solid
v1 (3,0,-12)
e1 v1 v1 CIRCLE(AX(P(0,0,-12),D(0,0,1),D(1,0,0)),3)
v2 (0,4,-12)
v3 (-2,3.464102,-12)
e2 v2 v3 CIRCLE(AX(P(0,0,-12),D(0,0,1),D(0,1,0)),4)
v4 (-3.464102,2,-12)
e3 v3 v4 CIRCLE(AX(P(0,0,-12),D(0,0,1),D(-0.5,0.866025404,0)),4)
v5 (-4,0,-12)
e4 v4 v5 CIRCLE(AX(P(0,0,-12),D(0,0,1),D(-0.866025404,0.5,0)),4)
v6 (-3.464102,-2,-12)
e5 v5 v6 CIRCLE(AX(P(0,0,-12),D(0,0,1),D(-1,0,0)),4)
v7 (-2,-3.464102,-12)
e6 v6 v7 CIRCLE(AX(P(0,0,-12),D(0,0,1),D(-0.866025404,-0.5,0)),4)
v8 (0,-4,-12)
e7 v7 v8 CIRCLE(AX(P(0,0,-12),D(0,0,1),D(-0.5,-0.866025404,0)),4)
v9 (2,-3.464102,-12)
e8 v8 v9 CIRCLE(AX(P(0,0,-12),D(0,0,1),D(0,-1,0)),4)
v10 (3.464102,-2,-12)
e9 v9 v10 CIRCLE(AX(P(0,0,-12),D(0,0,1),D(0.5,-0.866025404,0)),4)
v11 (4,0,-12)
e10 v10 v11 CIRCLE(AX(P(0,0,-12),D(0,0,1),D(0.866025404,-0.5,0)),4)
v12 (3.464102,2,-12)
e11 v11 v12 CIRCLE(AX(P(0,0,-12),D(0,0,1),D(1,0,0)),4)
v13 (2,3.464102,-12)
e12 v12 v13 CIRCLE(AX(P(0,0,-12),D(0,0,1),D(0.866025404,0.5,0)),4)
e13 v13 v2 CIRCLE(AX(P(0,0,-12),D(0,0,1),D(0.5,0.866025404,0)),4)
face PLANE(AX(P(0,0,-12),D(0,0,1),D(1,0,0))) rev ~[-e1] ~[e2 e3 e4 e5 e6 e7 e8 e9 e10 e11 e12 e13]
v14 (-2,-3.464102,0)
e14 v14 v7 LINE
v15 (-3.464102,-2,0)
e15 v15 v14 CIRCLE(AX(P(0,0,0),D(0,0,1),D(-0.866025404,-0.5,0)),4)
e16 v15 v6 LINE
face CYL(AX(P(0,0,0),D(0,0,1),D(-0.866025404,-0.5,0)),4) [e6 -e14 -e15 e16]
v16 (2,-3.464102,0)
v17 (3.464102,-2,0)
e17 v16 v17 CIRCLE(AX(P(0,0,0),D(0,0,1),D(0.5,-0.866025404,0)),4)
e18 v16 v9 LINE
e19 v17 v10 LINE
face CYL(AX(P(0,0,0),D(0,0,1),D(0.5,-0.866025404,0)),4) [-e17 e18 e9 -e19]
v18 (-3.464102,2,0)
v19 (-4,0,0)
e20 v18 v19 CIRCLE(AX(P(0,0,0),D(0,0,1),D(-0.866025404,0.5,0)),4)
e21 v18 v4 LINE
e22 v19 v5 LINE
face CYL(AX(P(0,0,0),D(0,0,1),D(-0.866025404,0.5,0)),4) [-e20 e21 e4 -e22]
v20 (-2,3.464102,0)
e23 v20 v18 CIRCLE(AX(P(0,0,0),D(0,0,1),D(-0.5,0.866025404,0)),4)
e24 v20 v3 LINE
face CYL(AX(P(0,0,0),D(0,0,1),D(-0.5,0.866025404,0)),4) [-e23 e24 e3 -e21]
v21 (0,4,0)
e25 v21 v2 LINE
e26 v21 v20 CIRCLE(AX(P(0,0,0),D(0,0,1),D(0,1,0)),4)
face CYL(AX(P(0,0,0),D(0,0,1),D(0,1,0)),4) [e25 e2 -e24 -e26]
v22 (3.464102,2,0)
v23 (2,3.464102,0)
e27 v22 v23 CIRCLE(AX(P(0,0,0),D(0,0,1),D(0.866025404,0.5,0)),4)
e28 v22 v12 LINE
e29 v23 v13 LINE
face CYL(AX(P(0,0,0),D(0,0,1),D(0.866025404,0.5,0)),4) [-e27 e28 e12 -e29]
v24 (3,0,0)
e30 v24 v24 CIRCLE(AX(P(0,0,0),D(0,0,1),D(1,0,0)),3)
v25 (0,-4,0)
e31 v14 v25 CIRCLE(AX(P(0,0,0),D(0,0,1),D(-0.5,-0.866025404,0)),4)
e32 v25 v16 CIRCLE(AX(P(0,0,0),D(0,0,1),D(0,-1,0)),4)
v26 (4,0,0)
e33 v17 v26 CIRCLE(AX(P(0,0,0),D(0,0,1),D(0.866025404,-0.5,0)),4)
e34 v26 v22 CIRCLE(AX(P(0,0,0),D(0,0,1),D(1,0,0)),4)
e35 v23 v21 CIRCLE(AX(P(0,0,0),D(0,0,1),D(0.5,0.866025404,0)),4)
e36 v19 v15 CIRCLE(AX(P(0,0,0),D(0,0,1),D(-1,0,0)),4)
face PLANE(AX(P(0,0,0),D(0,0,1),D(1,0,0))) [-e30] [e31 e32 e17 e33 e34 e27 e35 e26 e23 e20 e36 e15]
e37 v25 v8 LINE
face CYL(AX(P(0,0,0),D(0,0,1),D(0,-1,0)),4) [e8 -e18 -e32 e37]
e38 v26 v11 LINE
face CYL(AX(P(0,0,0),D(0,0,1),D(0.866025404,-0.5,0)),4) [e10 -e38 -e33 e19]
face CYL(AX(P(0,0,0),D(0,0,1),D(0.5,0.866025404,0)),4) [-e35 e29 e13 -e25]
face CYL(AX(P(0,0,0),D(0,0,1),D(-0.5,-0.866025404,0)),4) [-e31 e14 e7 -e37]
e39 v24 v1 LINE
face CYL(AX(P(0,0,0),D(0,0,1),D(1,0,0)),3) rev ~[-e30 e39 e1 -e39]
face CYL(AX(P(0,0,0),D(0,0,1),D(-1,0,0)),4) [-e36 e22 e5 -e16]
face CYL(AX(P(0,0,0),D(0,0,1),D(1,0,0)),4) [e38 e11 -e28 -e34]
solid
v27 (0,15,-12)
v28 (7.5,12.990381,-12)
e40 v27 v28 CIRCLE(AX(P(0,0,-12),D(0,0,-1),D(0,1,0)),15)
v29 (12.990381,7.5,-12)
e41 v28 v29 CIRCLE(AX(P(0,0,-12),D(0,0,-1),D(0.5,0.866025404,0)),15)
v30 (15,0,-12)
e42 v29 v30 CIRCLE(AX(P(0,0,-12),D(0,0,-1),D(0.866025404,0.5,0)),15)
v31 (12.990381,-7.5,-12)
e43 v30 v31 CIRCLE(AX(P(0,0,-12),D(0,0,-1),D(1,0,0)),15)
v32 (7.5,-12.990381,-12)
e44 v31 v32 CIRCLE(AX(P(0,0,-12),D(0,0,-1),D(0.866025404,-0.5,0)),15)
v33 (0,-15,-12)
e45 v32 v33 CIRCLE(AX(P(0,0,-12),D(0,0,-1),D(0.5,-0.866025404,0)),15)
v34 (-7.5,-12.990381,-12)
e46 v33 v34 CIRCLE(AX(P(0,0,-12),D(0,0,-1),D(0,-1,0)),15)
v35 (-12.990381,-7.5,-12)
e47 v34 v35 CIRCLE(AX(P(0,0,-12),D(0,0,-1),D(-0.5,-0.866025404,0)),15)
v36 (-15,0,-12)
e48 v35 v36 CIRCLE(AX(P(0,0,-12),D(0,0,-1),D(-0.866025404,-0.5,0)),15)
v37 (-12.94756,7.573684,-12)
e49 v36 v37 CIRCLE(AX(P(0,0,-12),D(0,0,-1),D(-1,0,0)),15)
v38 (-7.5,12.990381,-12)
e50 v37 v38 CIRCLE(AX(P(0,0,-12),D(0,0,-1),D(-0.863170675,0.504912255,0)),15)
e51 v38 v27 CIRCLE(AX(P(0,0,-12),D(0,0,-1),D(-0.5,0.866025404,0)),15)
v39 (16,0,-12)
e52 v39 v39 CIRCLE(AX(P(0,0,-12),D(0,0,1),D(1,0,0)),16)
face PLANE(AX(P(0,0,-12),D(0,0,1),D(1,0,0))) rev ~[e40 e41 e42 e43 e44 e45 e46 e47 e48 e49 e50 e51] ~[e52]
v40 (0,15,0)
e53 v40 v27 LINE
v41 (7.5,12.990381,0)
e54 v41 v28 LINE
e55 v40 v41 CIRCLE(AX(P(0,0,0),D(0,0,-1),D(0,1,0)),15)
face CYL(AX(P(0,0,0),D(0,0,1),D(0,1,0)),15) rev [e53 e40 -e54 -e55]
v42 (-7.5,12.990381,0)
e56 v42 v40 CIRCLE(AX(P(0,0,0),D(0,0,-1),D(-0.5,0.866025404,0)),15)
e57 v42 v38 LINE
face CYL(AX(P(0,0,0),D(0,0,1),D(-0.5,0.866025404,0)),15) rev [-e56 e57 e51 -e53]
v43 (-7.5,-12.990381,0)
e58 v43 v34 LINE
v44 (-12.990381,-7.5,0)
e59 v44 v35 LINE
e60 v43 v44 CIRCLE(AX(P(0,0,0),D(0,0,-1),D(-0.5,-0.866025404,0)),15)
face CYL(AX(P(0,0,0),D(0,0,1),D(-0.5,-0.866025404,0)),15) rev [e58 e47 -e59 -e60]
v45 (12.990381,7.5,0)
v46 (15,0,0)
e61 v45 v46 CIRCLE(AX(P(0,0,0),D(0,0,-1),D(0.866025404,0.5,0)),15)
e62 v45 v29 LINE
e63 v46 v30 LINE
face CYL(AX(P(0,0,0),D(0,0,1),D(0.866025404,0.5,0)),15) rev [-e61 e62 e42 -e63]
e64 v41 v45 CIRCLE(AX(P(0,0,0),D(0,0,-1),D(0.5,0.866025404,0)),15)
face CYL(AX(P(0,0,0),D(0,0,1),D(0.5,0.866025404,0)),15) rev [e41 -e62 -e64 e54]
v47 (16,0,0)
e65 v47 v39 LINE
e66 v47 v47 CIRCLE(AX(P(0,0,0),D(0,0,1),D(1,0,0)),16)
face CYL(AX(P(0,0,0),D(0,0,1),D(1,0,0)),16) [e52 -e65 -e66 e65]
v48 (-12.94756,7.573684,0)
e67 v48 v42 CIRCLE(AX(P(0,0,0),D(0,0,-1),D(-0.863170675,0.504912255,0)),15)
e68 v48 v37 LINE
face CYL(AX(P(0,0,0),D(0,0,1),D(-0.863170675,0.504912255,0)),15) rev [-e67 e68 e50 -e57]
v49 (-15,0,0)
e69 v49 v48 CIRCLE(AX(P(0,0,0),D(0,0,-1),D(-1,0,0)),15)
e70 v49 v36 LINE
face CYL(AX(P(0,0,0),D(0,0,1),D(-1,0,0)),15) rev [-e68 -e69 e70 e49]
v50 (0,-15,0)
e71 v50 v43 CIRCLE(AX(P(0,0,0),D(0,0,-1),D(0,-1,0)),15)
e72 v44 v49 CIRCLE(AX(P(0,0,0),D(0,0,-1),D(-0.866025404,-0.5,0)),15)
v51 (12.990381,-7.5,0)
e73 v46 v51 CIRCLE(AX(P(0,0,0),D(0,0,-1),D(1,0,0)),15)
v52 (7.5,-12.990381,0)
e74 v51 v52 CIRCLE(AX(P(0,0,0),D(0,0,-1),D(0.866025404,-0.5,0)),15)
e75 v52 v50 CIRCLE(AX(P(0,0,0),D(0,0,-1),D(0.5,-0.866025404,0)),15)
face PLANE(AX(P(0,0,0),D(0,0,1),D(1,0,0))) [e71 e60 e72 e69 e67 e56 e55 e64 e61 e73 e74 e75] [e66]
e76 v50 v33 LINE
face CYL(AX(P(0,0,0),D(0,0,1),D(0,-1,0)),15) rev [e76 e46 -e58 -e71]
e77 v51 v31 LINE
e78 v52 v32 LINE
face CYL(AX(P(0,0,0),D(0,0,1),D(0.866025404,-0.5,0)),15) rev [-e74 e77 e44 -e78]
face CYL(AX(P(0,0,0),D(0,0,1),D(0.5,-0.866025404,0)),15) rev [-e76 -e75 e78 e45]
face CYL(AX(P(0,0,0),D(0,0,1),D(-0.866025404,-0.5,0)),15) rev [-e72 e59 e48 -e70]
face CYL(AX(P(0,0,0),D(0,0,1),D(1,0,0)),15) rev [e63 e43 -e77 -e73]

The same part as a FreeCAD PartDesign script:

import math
import FreeCAD as App
import Part
import Sketcher

V = App.Vector

doc = App.newDocument("Part")
params = doc.addObject("Spreadsheet::Sheet", "Params")
for row, (alias, value) in enumerate([
    ("sketch1_diameter", "6 mm"),
    ("sketch1_radius", "4 mm"),
    ("pad1_length", "12 mm"),
    ("sketch2_diameter", "32 mm"),
    ("sketch2_radius", "15 mm"),
    ("pad2_length", "12 mm"),
], start=1):
    params.set(f"A{row}", alias)
    params.set(f"B{row}", "=" + value)
    params.setAlias(f"B{row}", alias)

body = doc.addObject("PartDesign::Body", "Body")

# Sketch on XY plane
sketch1 = doc.addObject("Sketcher::SketchObject", "Sketch")
body.addObject(sketch1)
sketch1.AttachmentSupport = (doc.XY_Plane, [""])
sketch1.MapMode = "FlatFace"
sketch1.addGeometry(Part.ArcOfCircle(Part.Circle(V(0, 0, 0), V(0, 0, 1), 4), math.radians(-120), math.radians(-90)), False)
sketch1.addGeometry(Part.ArcOfCircle(Part.Circle(V(0, 0, 0), V(0, 0, 1), 4), math.radians(-90), math.radians(-60)), False)
sketch1.addGeometry(Part.ArcOfCircle(Part.Circle(V(0, 0, 0), V(0, 0, 1), 4), math.radians(-60), math.radians(-30)), False)
sketch1.addGeometry(Part.ArcOfCircle(Part.Circle(V(0, 0, 0), V(0, 0, 1), 4), math.radians(-30), math.radians(0)), False)
sketch1.addGeometry(Part.ArcOfCircle(Part.Circle(V(0, 0, 0), V(0, 0, 1), 4), math.radians(0), math.radians(30)), False)
sketch1.addGeometry(Part.ArcOfCircle(Part.Circle(V(0, 0, 0), V(0, 0, 1), 4), math.radians(30), math.radians(60)), False)
sketch1.addGeometry(Part.ArcOfCircle(Part.Circle(V(0, 0, 0), V(0, 0, 1), 4), math.radians(60), math.radians(90)), False)
sketch1.addGeometry(Part.ArcOfCircle(Part.Circle(V(0, 0, 0), V(0, 0, 1), 4), math.radians(90), math.radians(120)), False)
sketch1.addGeometry(Part.ArcOfCircle(Part.Circle(V(0, 0, 0), V(0, 0, 1), 4), math.radians(120), math.radians(150)), False)
sketch1.addGeometry(Part.ArcOfCircle(Part.Circle(V(0, 0, 0), V(0, 0, 1), 4), math.radians(150), math.radians(180)), False)
sketch1.addGeometry(Part.ArcOfCircle(Part.Circle(V(0, 0, 0), V(0, 0, 1), 4), math.radians(180), math.radians(210)), False)
sketch1.addGeometry(Part.ArcOfCircle(Part.Circle(V(0, 0, 0), V(0, 0, 1), 4), math.radians(-150), math.radians(-120)), False)
sketch1.addGeometry(Part.Circle(V(0, 0, 0), V(0, 0, 1), 3), False)
sketch1.addConstraint(Sketcher.Constraint("Tangent", 0, 2, 1, 1))
sketch1.addConstraint(Sketcher.Constraint("Tangent", 1, 2, 2, 1))
sketch1.addConstraint(Sketcher.Constraint("Tangent", 2, 2, 3, 1))
sketch1.addConstraint(Sketcher.Constraint("Tangent", 3, 2, 4, 1))
sketch1.addConstraint(Sketcher.Constraint("Tangent", 4, 2, 5, 1))
sketch1.addConstraint(Sketcher.Constraint("Tangent", 5, 2, 6, 1))
sketch1.addConstraint(Sketcher.Constraint("Tangent", 6, 2, 7, 1))
sketch1.addConstraint(Sketcher.Constraint("Tangent", 7, 2, 8, 1))
sketch1.addConstraint(Sketcher.Constraint("Tangent", 8, 2, 9, 1))
sketch1.addConstraint(Sketcher.Constraint("Tangent", 9, 2, 10, 1))
sketch1.addConstraint(Sketcher.Constraint("Tangent", 10, 2, 11, 1))
sketch1.addConstraint(Sketcher.Constraint("Tangent", 11, 2, 0, 1))
sketch1.addConstraint(Sketcher.Constraint("Coincident", 0, 3, -1, 1))
sketch1.addConstraint(Sketcher.Constraint("Coincident", 2, 3, -1, 1))
sketch1.addConstraint(Sketcher.Constraint("Coincident", 4, 3, -1, 1))
sketch1.addConstraint(Sketcher.Constraint("Coincident", 6, 3, -1, 1))
sketch1.addConstraint(Sketcher.Constraint("Coincident", 8, 3, -1, 1))
sketch1.addConstraint(Sketcher.Constraint("Coincident", 12, 3, -1, 1))
sketch1.addConstraint(Sketcher.Constraint("Equal", 8, 9))
sketch1.addConstraint(Sketcher.Constraint("PointOnObject", 0, 2, -2))
sketch1.addConstraint(Sketcher.Constraint("PointOnObject", 3, 2, -1))
sketch1.addConstraint(Sketcher.Constraint("PointOnObject", 6, 2, -2))
sketch1.addConstraint(Sketcher.Constraint("PointOnObject", 9, 2, -1))
sketch1.addConstraint(Sketcher.Constraint("Horizontal", 5, 2, 7, 2))
sketch1.addConstraint(Sketcher.Constraint("Horizontal", 4, 2, 8, 2))
sketch1.addConstraint(Sketcher.Constraint("Horizontal", 2, 2, 10, 2))
sketch1.addConstraint(Sketcher.Constraint("Horizontal", 1, 2, 11, 2))
sketch1.addConstraint(Sketcher.Constraint("Vertical", 2, 2, 4, 2))
sketch1.addConstraint(Sketcher.Constraint("Vertical", 1, 2, 5, 2))
sketch1.addConstraint(Sketcher.Constraint("Diameter", 12, 6.0))
sketch1.addConstraint(Sketcher.Constraint("Radius", 0, 4.0))
sketch1.addConstraint(Sketcher.Constraint("DistanceX", -1, 1, 1, 2, 2.0))
sketch1.addConstraint(Sketcher.Constraint("DistanceY", 2, 2, -1, 1, 2.0))
sketch1.setExpression("Constraints[29]", "Params.sketch1_diameter")
sketch1.setExpression("Constraints[30]", "Params.sketch1_radius")
pad1 = doc.addObject("PartDesign::Pad", "Pad")
body.addObject(pad1)
pad1.Profile = sketch1
pad1.setExpression("Length", "Params.pad1_length")
pad1.Reversed = True
body2 = doc.addObject("PartDesign::Body", "Body001")

# Sketch on XY plane
sketch2 = doc.addObject("Sketcher::SketchObject", "Sketch001")
body2.addObject(sketch2)
sketch2.AttachmentSupport = (doc.getObject("XY_Plane001"), [""])
sketch2.MapMode = "FlatFace"
sketch2.addGeometry(Part.Circle(V(0, 0, 0), V(0, 0, 1), 16), False)
sketch2.addGeometry(Part.ArcOfCircle(Part.Circle(V(0, 0, 0), V(0, 0, 1), 15), math.radians(30), math.radians(60)), False)
sketch2.addGeometry(Part.ArcOfCircle(Part.Circle(V(0, 0, 0), V(0, 0, 1), 15), math.radians(0), math.radians(30)), False)
sketch2.addGeometry(Part.ArcOfCircle(Part.Circle(V(0, 0, 0), V(0, 0, 1), 15), math.radians(-30), math.radians(0)), False)
sketch2.addGeometry(Part.ArcOfCircle(Part.Circle(V(0, 0, 0), V(0, 0, 1), 15), math.radians(-60), math.radians(-30)), False)
sketch2.addGeometry(Part.ArcOfCircle(Part.Circle(V(0, 0, 0), V(0, 0, 1), 15), math.radians(-90), math.radians(-60)), False)
sketch2.addGeometry(Part.ArcOfCircle(Part.Circle(V(0, 0, 0), V(0, 0, 1), 15), math.radians(-120), math.radians(-90)), False)
sketch2.addGeometry(Part.ArcOfCircle(Part.Circle(V(0, 0, 0), V(0, 0, 1), 15), math.radians(-150), math.radians(-120)), False)
sketch2.addGeometry(Part.ArcOfCircle(Part.Circle(V(0, 0, 0), V(0, 0, 1), 15), math.radians(180), math.radians(210)), False)
sketch2.addGeometry(Part.ArcOfCircle(Part.Circle(V(0, 0, 0), V(0, 0, 1), 15), math.radians(150), math.radians(180)), False)
sketch2.addGeometry(Part.ArcOfCircle(Part.Circle(V(0, 0, 0), V(0, 0, 1), 15), math.radians(120), math.radians(150)), False)
sketch2.addGeometry(Part.ArcOfCircle(Part.Circle(V(0, 0, 0), V(0, 0, 1), 15), math.radians(90), math.radians(120)), False)
sketch2.addGeometry(Part.ArcOfCircle(Part.Circle(V(0, 0, 0), V(0, 0, 1), 15), math.radians(60), math.radians(90)), False)
sketch2.addConstraint(Sketcher.Constraint("Tangent", 1, 1, 2, 2))
sketch2.addConstraint(Sketcher.Constraint("Tangent", 2, 1, 3, 2))
sketch2.addConstraint(Sketcher.Constraint("Tangent", 3, 1, 4, 2))
sketch2.addConstraint(Sketcher.Constraint("Tangent", 4, 1, 5, 2))
sketch2.addConstraint(Sketcher.Constraint("Tangent", 5, 1, 6, 2))
sketch2.addConstraint(Sketcher.Constraint("Tangent", 6, 1, 7, 2))
sketch2.addConstraint(Sketcher.Constraint("Tangent", 7, 1, 8, 2))
sketch2.addConstraint(Sketcher.Constraint("Tangent", 8, 1, 9, 2))
sketch2.addConstraint(Sketcher.Constraint("Tangent", 9, 1, 10, 2))
sketch2.addConstraint(Sketcher.Constraint("Tangent", 10, 1, 11, 2))
sketch2.addConstraint(Sketcher.Constraint("Tangent", 11, 1, 12, 2))
sketch2.addConstraint(Sketcher.Constraint("Tangent", 12, 1, 1, 2))
sketch2.addConstraint(Sketcher.Constraint("Coincident", 0, 3, -1, 1))
sketch2.addConstraint(Sketcher.Constraint("Coincident", 1, 3, -1, 1))
sketch2.addConstraint(Sketcher.Constraint("Coincident", 3, 3, -1, 1))
sketch2.addConstraint(Sketcher.Constraint("Coincident", 5, 3, -1, 1))
sketch2.addConstraint(Sketcher.Constraint("Coincident", 7, 3, -1, 1))
sketch2.addConstraint(Sketcher.Constraint("Coincident", 9, 3, -1, 1))
sketch2.addConstraint(Sketcher.Constraint("Equal", 9, 10))
sketch2.addConstraint(Sketcher.Constraint("PointOnObject", 2, 1, -1))
sketch2.addConstraint(Sketcher.Constraint("PointOnObject", 5, 1, -2))
sketch2.addConstraint(Sketcher.Constraint("PointOnObject", 8, 1, -1))
sketch2.addConstraint(Sketcher.Constraint("PointOnObject", 11, 1, -2))
sketch2.addConstraint(Sketcher.Constraint("Horizontal", 4, 1, 6, 1))
sketch2.addConstraint(Sketcher.Constraint("Horizontal", 3, 1, 7, 1))
sketch2.addConstraint(Sketcher.Constraint("Horizontal", 10, 1, 12, 1))
sketch2.addConstraint(Sketcher.Constraint("Vertical", 1, 1, 3, 1))
sketch2.addConstraint(Sketcher.Constraint("Vertical", 6, 1, 10, 1))
sketch2.addConstraint(Sketcher.Constraint("Diameter", 0, 32.0))
sketch2.addConstraint(Sketcher.Constraint("Radius", 1, 15.0))
sketch2.addConstraint(Sketcher.Constraint("DistanceY", -1, 1, 1, 1, 7.5))
sketch2.addConstraint(Sketcher.Constraint("DistanceX", -1, 1, 4, 1, 7.5))
sketch2.addConstraint(Sketcher.Constraint("DistanceX", 9, 1, -1, 1, 12.94756))
sketch2.setExpression("Constraints[28]", "Params.sketch2_diameter")
sketch2.setExpression("Constraints[29]", "Params.sketch2_radius")
pad2 = doc.addObject("PartDesign::Pad", "Pad001")
body2.addObject(pad2)
pad2.Profile = sketch2
pad2.setExpression("Length", "Params.pad2_length")
pad2.Reversed = True

doc.recompute()
